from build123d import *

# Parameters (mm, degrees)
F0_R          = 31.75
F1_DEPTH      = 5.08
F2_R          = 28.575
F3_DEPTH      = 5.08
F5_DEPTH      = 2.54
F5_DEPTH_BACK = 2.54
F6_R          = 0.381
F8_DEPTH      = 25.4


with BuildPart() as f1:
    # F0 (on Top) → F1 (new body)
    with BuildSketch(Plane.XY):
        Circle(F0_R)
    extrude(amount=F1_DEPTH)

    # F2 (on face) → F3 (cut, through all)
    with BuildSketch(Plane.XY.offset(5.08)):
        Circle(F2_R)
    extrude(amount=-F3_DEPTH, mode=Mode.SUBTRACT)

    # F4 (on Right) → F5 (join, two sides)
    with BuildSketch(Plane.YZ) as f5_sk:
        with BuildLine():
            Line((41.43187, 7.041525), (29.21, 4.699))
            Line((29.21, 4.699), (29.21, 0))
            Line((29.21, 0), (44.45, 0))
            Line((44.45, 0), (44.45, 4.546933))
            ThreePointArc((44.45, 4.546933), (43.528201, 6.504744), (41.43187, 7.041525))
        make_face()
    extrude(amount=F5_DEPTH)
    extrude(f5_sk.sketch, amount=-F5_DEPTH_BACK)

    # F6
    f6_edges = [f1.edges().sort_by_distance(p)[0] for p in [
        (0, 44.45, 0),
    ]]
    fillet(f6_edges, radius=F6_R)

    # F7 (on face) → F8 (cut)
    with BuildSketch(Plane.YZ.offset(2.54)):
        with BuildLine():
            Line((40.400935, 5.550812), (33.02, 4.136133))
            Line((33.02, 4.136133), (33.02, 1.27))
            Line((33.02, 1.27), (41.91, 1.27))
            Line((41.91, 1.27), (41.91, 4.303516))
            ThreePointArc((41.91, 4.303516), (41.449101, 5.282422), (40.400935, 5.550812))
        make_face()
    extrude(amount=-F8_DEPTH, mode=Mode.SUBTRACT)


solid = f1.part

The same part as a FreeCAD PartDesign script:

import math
import FreeCAD as App
import Part
import Sketcher
from FreeCAD import Vector
Q = App.Units.Quantity


def edges_at(feature, points):
    """Names of the edges that pass closest to the given points."""
    edges = feature.Shape.Edges
    near = lambda p: min(range(len(edges)), key=lambda i: edges[i].distToShape(Part.Vertex(*p))[0])
    return sorted({f"Edge{near(p) + 1}" for p in points})

doc = App.newDocument("Part")
params = doc.addObject("Spreadsheet::Sheet", "Params")
for row, (alias, value) in enumerate([
    ("sketch1_diameter", "2.5 in"),
    ("pad1_length", "0.2 in"),
    ("sketch2_diameter", "2.25 in"),
    ("sketch3_radius", "0.1 in"),
    ("sketch3_width", "0.6 in"),
    ("sketch3_height", "0.185 in"),
    ("pad2_length", "0.1 in"),
    ("pad2_length2", "0.1 in"),
    ("fillet_radius", "0.015 in"),
    ("sketch4_radius", "0.0499999 in"),
    ("sketch4_width", "0.35 in"),
    ("pocket2_length", "1 in"),
], start=1):
    params.set(f"A{row}", alias)
    params.set(f"B{row}", "=" + value)
    params.setAlias(f"B{row}", alias)

body = doc.addObject("PartDesign::Body", "Body")

# Sketch on XY plane
sketch1 = body.newObject("Sketcher::SketchObject", "Sketch")
sketch1.AttachmentSupport = (doc.getObject("XY_Plane"), [""])
sketch1.MapMode = "FlatFace"
sketch1.addGeometry(Part.Circle(Vector(0, 0, 0), Vector(0, 0, 1), 32), False)
sketch1.addConstraint(Sketcher.Constraint("Coincident", 0, 3, -1, 1))
sketch1.addConstraint(Sketcher.Constraint("Diameter", 0, Q("2.5 in")))
sketch1.setExpression("Constraints[1]", "Params.sketch1_diameter")
pad1 = body.newObject("PartDesign::Pad", "Pad")
pad1.Profile = sketch1
pad1.setExpression("Length", "Params.pad1_length")

# Sketch on XY plane
sketch2 = body.newObject("Sketcher::SketchObject", "Sketch001")
sketch2.AttachmentSupport = (doc.getObject("XY_Plane"), [""])
sketch2.MapMode = "FlatFace"
sketch2.AttachmentOffset = App.Placement(Vector(0, 0, 0.2 * 25.4), App.Rotation())
sketch2.addGeometry(Part.Circle(Vector(0, 0, 0), Vector(0, 0, 1), 29), False)
sketch2.addConstraint(Sketcher.Constraint("Coincident", 0, 3, -1, 1))
sketch2.addConstraint(Sketcher.Constraint("Diameter", 0, Q("2.25 in")))
sketch2.setExpression("Constraints[1]", "Params.sketch2_diameter")
pocket1 = body.newObject("PartDesign::Pocket", "Pocket")
pocket1.Profile = sketch2
pocket1.Type = "ThroughAll"

# Sketch on YZ plane
sketch3 = body.newObject("Sketcher::SketchObject", "Sketch002")
sketch3.AttachmentSupport = (doc.getObject("YZ_Plane"), [""])
sketch3.MapMode = "FlatFace"
sketch3.addGeometry(Part.LineSegment(Vector(41.4, 7, 0), Vector(29.2, 4.7, 0)), False)
sketch3.addGeometry(Part.LineSegment(Vector(29.2, 4.7, 0), Vector(29.2, 0, 0)), False)
sketch3.addGeometry(Part.LineSegment(Vector(29.2, 0, 0), Vector(44.5, 0, 0)), False)
sketch3.addGeometry(Part.LineSegment(Vector(44.5, 0, 0), Vector(44.5, 4.5, 0)), False)
sketch3.addGeometry(Part.ArcOfCircle(Part.Circle(Vector(41.9, 4.5, 0), Vector(0, 0, 1), 2.5), math.radians(0), math.radians(101)), False)
sketch3.addConstraint(Sketcher.Constraint("Coincident", 0, 2, 1, 1))
sketch3.addConstraint(Sketcher.Constraint("Coincident", 1, 2, 2, 1))
sketch3.addConstraint(Sketcher.Constraint("Coincident", 2, 2, 3, 1))
sketch3.addConstraint(Sketcher.Constraint("Tangent", 3, 2, 4, 1))
sketch3.addConstraint(Sketcher.Constraint("Tangent", 4, 2, 0, 1))
sketch3.addConstraint(Sketcher.Constraint("Vertical", 1))
sketch3.addConstraint(Sketcher.Constraint("Horizontal", 2))
sketch3.addConstraint(Sketcher.Constraint("Vertical", 3))
sketch3.addConstraint(Sketcher.Constraint("PointOnObject", 1, 2, -1))
sketch3.addConstraint(Sketcher.Constraint("Radius", 4, Q("0.1 in")))
sketch3.addConstraint(Sketcher.Constraint("DistanceX", 2, 1, 2, 2, Q("0.6 in")))
sketch3.addConstraint(Sketcher.Constraint("DistanceY", 1, 2, 1, 1, Q("0.185 in")))
sketch3.addConstraint(Sketcher.Constraint("DistanceX", -1, 1, 4, 3, Q("1.65 in")))
sketch3.addConstraint(Sketcher.Constraint("DistanceY", 3, 1, 3, 2, 4.546933))
sketch3.setExpression("Constraints[9]", "Params.sketch3_radius")
sketch3.setExpression("Constraints[10]", "Params.sketch3_width")
sketch3.setExpression("Constraints[11]", "Params.sketch3_height")
pad2 = body.newObject("PartDesign::Pad", "Pad001")
pad2.Profile = sketch3
pad2.Type = "TwoLengths"
pad2.setExpression("Length", "Params.pad2_length")
pad2.setExpression("Length2", "Params.pad2_length2")
doc.recompute()

fillet = body.newObject("PartDesign::Fillet", "Fillet")
fillet.Base = (pad2, edges_at(pad2, [(0, 44.45, 0)]))
fillet.setExpression("Radius", "Params.fillet_radius")

# Sketch on YZ plane
sketch4 = body.newObject("Sketcher::SketchObject", "Sketch003")
sketch4.AttachmentSupport = (doc.getObject("YZ_Plane"), [""])
sketch4.MapMode = "FlatFace"
sketch4.AttachmentOffset = App.Placement(Vector(0, 0, 0.1 * 25.4), App.Rotation())
sketch4.addGeometry(Part.LineSegment(Vector(40.4, 5.6, 0), Vector(33, 4.1, 0)), False)
sketch4.addGeometry(Part.LineSegment(Vector(33, 4.1, 0), Vector(33, 1.3, 0)), False)
sketch4.addGeometry(Part.LineSegment(Vector(33, 1.3, 0), Vector(41.9, 1.3, 0)), False)
sketch4.addGeometry(Part.LineSegment(Vector(41.9, 1.3, 0), Vector(41.9, 4.3, 0)), False)
sketch4.addGeometry(Part.ArcOfCircle(Part.Circle(Vector(40.6, 4.3, 0), Vector(0, 0, 1), 1.3), math.radians(0), math.radians(101)), False)
sketch4.addConstraint(Sketcher.Constraint("Coincident", 0, 2, 1, 1))
sketch4.addConstraint(Sketcher.Constraint("Coincident", 1, 2, 2, 1))
sketch4.addConstraint(Sketcher.Constraint("Coincident", 2, 2, 3, 1))
sketch4.addConstraint(Sketcher.Constraint("Tangent", 3, 2, 4, 1))
sketch4.addConstraint(Sketcher.Constraint("Tangent", 4, 2, 0, 1))
sketch4.addConstraint(Sketcher.Constraint("Vertical", 1))
sketch4.addConstraint(Sketcher.Constraint("Horizontal", 2))
sketch4.addConstraint(Sketcher.Constraint("Vertical", 3))
sketch4.addConstraint(Sketcher.Constraint("Radius", 4, Q("0.0499999 in")))
sketch4.addConstraint(Sketcher.Constraint("DistanceX", 2, 1, 2, 2, Q("0.35 in")))
sketch4.addConstraint(Sketcher.Constraint("DistanceX", -1, 1, 4, 3, Q("1.6000001 in")))
sketch4.addConstraint(Sketcher.Constraint("DistanceY", -1, 1, 1, 2, Q("0.05 in")))
sketch4.addConstraint(Sketcher.Constraint("DistanceY", 1, 2, 1, 1, 2.866133))
sketch4.addConstraint(Sketcher.Constraint("DistanceY", 3, 1, 3, 2, 3.033516))
sketch4.setExpression("Constraints[8]", "Params.sketch4_radius")
sketch4.setExpression("Constraints[9]", "Params.sketch4_width")
pocket2 = body.newObject("PartDesign::Pocket", "Pocket001")
pocket2.Profile = sketch4
pocket2.setExpression("Length", "Params.pocket2_length")

doc.recompute()
